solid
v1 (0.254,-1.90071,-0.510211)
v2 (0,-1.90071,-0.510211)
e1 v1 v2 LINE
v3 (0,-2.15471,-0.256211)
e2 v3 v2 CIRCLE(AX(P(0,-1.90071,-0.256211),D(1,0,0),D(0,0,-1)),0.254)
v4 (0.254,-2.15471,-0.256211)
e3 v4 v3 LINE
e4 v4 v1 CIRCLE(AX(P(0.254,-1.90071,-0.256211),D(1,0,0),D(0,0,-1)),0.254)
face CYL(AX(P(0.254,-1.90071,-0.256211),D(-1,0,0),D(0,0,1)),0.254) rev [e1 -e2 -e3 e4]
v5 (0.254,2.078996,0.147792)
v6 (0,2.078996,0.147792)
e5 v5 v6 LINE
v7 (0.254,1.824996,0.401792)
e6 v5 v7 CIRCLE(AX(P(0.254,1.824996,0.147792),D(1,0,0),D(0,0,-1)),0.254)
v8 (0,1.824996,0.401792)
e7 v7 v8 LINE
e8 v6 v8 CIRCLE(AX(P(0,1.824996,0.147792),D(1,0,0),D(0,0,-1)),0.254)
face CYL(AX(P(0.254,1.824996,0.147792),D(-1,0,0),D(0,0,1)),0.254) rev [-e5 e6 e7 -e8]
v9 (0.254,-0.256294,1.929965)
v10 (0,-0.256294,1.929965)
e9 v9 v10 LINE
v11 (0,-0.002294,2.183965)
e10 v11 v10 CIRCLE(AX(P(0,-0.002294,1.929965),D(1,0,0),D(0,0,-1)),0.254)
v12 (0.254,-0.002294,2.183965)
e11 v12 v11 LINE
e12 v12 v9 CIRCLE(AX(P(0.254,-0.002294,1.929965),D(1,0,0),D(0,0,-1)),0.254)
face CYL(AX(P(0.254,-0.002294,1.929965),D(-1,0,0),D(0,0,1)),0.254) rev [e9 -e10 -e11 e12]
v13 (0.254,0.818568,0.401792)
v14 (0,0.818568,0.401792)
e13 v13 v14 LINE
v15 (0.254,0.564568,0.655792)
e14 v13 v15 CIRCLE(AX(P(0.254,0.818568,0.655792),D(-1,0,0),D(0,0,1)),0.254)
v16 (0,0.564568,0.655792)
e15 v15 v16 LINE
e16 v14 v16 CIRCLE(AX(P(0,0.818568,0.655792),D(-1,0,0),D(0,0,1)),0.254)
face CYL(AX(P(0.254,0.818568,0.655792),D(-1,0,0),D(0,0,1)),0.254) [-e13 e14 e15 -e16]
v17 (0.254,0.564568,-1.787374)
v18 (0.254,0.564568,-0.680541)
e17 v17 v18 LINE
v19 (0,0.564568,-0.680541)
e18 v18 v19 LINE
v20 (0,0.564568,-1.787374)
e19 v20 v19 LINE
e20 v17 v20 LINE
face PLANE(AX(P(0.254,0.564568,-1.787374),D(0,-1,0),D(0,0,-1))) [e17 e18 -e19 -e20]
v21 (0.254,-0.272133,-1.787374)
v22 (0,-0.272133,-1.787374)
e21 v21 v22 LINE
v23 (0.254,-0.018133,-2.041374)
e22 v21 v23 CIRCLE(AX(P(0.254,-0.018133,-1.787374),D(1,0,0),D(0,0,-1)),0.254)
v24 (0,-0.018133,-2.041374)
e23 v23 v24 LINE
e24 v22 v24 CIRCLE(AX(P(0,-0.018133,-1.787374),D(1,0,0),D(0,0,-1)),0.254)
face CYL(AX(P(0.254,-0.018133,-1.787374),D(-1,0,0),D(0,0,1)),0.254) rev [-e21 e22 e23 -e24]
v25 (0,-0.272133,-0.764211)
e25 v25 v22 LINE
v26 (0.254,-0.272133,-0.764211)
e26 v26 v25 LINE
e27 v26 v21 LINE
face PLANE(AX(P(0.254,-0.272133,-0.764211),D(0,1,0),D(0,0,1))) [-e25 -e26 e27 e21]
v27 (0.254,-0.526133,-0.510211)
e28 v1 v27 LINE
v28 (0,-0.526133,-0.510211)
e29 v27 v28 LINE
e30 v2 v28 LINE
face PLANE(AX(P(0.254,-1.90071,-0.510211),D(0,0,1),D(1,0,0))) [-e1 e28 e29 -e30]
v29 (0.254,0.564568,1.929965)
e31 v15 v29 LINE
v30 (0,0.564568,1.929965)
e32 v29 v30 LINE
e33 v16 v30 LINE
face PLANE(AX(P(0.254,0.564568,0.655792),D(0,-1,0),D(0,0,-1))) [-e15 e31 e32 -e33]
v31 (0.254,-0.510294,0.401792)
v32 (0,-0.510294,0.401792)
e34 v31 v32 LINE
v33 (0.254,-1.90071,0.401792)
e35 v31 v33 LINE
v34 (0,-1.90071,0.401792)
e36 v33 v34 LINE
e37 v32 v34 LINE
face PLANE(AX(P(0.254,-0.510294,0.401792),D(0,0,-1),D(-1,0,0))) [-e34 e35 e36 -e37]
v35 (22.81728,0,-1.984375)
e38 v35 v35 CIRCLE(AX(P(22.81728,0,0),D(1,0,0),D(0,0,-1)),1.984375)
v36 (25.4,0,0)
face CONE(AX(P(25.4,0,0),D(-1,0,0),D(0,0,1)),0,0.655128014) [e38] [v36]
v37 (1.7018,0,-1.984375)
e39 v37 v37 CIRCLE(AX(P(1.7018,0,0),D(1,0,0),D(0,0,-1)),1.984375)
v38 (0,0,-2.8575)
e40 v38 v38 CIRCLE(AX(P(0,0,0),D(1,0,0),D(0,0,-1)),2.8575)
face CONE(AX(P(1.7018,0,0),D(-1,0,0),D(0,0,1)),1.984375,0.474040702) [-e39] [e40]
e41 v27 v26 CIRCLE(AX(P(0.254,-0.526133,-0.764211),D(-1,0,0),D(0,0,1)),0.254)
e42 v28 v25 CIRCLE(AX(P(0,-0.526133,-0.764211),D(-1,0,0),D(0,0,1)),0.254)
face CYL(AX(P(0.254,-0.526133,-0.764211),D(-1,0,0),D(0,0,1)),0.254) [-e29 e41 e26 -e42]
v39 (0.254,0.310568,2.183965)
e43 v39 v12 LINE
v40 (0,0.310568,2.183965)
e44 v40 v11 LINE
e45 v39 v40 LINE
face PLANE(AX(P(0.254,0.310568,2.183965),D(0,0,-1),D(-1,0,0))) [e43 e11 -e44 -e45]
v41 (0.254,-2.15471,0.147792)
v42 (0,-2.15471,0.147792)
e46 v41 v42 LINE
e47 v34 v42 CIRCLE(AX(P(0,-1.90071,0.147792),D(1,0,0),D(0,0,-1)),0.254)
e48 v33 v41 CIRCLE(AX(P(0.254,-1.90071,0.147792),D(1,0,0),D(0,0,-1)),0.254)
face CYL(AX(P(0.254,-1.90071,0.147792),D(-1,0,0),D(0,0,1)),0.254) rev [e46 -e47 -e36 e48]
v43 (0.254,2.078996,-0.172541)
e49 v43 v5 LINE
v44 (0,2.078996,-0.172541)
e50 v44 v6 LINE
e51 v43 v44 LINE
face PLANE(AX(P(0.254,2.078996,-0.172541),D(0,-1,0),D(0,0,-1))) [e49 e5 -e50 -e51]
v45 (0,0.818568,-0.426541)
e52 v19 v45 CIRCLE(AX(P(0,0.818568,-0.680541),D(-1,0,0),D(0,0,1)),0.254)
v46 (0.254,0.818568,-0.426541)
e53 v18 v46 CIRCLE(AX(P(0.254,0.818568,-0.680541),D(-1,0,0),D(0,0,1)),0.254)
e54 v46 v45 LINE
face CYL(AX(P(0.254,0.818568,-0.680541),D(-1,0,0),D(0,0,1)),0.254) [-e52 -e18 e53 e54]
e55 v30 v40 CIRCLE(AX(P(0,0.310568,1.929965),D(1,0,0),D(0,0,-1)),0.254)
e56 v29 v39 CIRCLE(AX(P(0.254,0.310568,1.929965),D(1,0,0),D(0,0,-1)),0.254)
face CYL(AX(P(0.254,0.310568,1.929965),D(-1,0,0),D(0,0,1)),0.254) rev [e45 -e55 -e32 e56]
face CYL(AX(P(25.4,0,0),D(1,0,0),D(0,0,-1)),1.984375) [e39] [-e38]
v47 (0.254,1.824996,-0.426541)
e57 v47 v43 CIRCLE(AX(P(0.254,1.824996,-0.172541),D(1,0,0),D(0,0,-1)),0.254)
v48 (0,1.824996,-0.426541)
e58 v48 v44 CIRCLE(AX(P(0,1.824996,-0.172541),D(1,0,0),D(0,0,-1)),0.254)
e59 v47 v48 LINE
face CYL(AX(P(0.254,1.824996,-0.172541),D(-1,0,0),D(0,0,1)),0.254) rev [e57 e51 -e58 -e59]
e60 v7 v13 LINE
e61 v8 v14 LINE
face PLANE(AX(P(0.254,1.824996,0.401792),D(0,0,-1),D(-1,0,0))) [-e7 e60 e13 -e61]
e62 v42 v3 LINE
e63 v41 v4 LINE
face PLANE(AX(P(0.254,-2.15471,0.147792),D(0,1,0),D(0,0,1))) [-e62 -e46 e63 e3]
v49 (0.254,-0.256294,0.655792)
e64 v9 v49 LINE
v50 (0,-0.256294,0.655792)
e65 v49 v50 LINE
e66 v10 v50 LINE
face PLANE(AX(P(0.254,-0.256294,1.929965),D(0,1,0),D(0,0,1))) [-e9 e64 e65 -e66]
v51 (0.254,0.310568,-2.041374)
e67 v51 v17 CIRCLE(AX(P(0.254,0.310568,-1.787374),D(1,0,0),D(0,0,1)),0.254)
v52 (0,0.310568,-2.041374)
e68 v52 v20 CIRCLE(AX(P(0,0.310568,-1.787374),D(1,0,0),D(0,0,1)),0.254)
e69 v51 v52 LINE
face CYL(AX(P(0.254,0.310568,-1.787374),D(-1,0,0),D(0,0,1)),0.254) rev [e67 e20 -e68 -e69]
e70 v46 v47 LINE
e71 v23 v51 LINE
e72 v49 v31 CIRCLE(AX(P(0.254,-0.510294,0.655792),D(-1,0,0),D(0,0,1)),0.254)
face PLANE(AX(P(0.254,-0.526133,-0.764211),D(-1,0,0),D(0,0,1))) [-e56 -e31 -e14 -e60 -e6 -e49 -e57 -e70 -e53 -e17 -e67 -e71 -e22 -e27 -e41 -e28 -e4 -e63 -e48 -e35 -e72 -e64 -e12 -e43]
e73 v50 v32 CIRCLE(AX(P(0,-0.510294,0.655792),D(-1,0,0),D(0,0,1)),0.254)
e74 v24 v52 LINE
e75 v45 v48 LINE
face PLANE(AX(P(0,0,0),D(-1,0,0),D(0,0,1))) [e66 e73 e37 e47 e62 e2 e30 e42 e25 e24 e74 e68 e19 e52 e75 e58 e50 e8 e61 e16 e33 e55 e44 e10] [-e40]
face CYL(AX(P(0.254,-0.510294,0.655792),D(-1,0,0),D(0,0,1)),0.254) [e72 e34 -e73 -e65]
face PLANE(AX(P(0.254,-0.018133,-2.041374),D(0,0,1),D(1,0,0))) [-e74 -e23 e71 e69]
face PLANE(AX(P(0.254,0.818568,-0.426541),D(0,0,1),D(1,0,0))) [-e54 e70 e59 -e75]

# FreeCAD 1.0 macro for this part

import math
import FreeCAD as App
import Part
import Sketcher
Q = App.Units.Quantity


def add_polygon(sketch, points):
    """Adds a closed chain of lines whose ends are joined by coincident constraints."""
    first, n = sketch.GeometryCount, len(points)
    for a, b in zip(points, points[1:] + points[:1]):
        sketch.addGeometry(Part.LineSegment(App.Vector(*a, 0), App.Vector(*b, 0)), False)
    for i in range(n):
        sketch.addConstraint(Sketcher.Constraint("Coincident", first + i, 2, first + (i + 1) % n, 1))

doc = App.newDocument("Part")
body = doc.addObject("PartDesign::Body", "Body")

# Sketch on XY plane
sketch1 = body.newObject("Sketcher::SketchObject", "Sketch")
sketch1.AttachmentSupport = (doc.getObject("XY_Plane"), [""])
sketch1.MapMode = "FlatFace"
add_polygon(sketch1, [(0, 2.9), (0, 0), (25.4, 0), (22.8, 2), (1.7, 2)])  # lines 0-4
sketch1.addConstraint([
    Sketcher.Constraint("Vertical", 0),
    Sketcher.Constraint("Horizontal", 1),
    Sketcher.Constraint("Horizontal", 3),
    Sketcher.Constraint("Coincident", 0, 2, -1, 1),
    Sketcher.Constraint("DistanceX", 1, 1, 1, 2, Q("1 in")),
    Sketcher.Constraint("DistanceY", 0, 2, 0, 1, Q("0.1125 in")),
    Sketcher.Constraint("DistanceY", -1, 1, 2, 2, Q("0.078125 in")),
    Sketcher.Constraint("DistanceX", -1, 1, 3, 2, Q("0.067 in")),
    Sketcher.Constraint("DistanceX", 3, 2, 3, 1, 21.11548),
])
revolution = body.newObject("PartDesign::Revolution", "Revolution")
revolution.Profile = sketch1
revolution.ReferenceAxis = (sketch1, ["H_Axis"])
revolution.Angle = 360

# Sketch on YZ plane
sketch2 = body.newObject("Sketcher::SketchObject", "Sketch001")
sketch2.AttachmentSupport = (doc.getObject("YZ_Plane"), [""])
sketch2.MapMode = "FlatFace"
sketch2.addGeometry([
    Part.LineSegment(App.Vector(0.56, -1.79, 0), App.Vector(0.56, -0.68, 0)),  # 0
    Part.ArcOfCircle(Part.Circle(App.Vector(0.82, -0.68, 0), App.Vector(0, 0, 1), 0.25), math.radians(90), math.radians(180)),  # 1
    Part.LineSegment(App.Vector(0.82, -0.43, 0), App.Vector(1.82, -0.43, 0)),  # 2
    Part.ArcOfCircle(Part.Circle(App.Vector(1.82, -0.17, 0), App.Vector(0, 0, 1), 0.25), math.radians(-90), math.radians(0)),  # 3
    Part.LineSegment(App.Vector(2.08, -0.17, 0), App.Vector(2.08, 0.15, 0)),  # 4
    Part.ArcOfCircle(Part.Circle(App.Vector(1.82, 0.15, 0), App.Vector(0, 0, 1), 0.25), math.radians(0), math.radians(90)),  # 5
    Part.LineSegment(App.Vector(1.82, 0.4, 0), App.Vector(0.82, 0.4, 0)),  # 6
    Part.ArcOfCircle(Part.Circle(App.Vector(0.82, 0.66, 0), App.Vector(0, 0, 1), 0.25), math.radians(-180), math.radians(-90)),  # 7
    Part.LineSegment(App.Vector(0.56, 0.66, 0), App.Vector(0.56, 1.93, 0)),  # 8
    Part.ArcOfCircle(Part.Circle(App.Vector(0.31, 1.93, 0), App.Vector(0, 0, 1), 0.25), math.radians(0), math.radians(90)),  # 9
    Part.LineSegment(App.Vector(0.31, 2.18, 0), App.Vector(0, 2.18, 0)),  # 10
    Part.ArcOfCircle(Part.Circle(App.Vector(0, 1.93, 0), App.Vector(0, 0, 1), 0.25), math.radians(90), math.radians(180)),  # 11
    Part.LineSegment(App.Vector(-0.26, 1.93, 0), App.Vector(-0.26, 0.66, 0)),  # 12
    Part.ArcOfCircle(Part.Circle(App.Vector(-0.51, 0.66, 0), App.Vector(0, 0, 1), 0.25), math.radians(-90), math.radians(0)),  # 13
    Part.LineSegment(App.Vector(-0.51, 0.4, 0), App.Vector(-1.9, 0.4, 0)),  # 14
    Part.ArcOfCircle(Part.Circle(App.Vector(-1.9, 0.15, 0), App.Vector(0, 0, 1), 0.25), math.radians(90), math.radians(180)),  # 15
    Part.LineSegment(App.Vector(-2.15, 0.15, 0), App.Vector(-2.15, -0.26, 0)),  # 16
    Part.ArcOfCircle(Part.Circle(App.Vector(-1.9, -0.26, 0), App.Vector(0, 0, 1), 0.25), math.radians(180), math.radians(270)),  # 17
    Part.LineSegment(App.Vector(-1.9, -0.51, 0), App.Vector(-0.53, -0.51, 0)),  # 18
    Part.ArcOfCircle(Part.Circle(App.Vector(-0.53, -0.76, 0), App.Vector(0, 0, 1), 0.25), math.radians(0), math.radians(90)),  # 19
    Part.LineSegment(App.Vector(-0.27, -0.76, 0), App.Vector(-0.27, -1.79, 0)),  # 20
    Part.ArcOfCircle(Part.Circle(App.Vector(-0.02, -1.79, 0), App.Vector(0, 0, 1), 0.25), math.radians(180), math.radians(270)),  # 21
    Part.LineSegment(App.Vector(-0.02, -2.04, 0), App.Vector(0.31, -2.04, 0)),  # 22
    Part.ArcOfCircle(Part.Circle(App.Vector(0.31, -1.79, 0), App.Vector(0, 0, 1), 0.25), math.radians(-90), math.radians(0)),  # 23
], False)
sketch2.addConstraint([
    Sketcher.Constraint("Tangent", 0, 2, 1, 2),
    Sketcher.Constraint("Tangent", 1, 1, 2, 1),
    Sketcher.Constraint("Tangent", 2, 2, 3, 1),
    Sketcher.Constraint("Tangent", 3, 2, 4, 1),
    Sketcher.Constraint("Tangent", 4, 2, 5, 1),
    Sketcher.Constraint("Tangent", 5, 2, 6, 1),
    Sketcher.Constraint("Tangent", 6, 2, 7, 2),
    Sketcher.Constraint("Tangent", 7, 1, 8, 1),
    Sketcher.Constraint("Tangent", 8, 2, 9, 1),
    Sketcher.Constraint("Tangent", 9, 2, 10, 1),
    Sketcher.Constraint("Tangent", 10, 2, 11, 1),
    Sketcher.Constraint("Tangent", 11, 2, 12, 1),
    Sketcher.Constraint("Tangent", 12, 2, 13, 2),
    Sketcher.Constraint("Tangent", 13, 1, 14, 1),
    Sketcher.Constraint("Tangent", 14, 2, 15, 1),
    Sketcher.Constraint("Tangent", 15, 2, 16, 1),
    Sketcher.Constraint("Tangent", 16, 2, 17, 1),
    Sketcher.Constraint("Tangent", 17, 2, 18, 1),
    Sketcher.Constraint("Tangent", 18, 2, 19, 2),
    Sketcher.Constraint("Tangent", 19, 1, 20, 1),
    Sketcher.Constraint("Tangent", 20, 2, 21, 1),
    Sketcher.Constraint("Tangent", 21, 2, 22, 1),
    Sketcher.Constraint("Tangent", 22, 2, 23, 1),
    Sketcher.Constraint("Tangent", 23, 2, 0, 1),
    Sketcher.Constraint("Vertical", 0),
    Sketcher.Constraint("Horizontal", 2),
    Sketcher.Constraint("Vertical", 4),
    Sketcher.Constraint("Horizontal", 6),
    Sketcher.Constraint("Vertical", 8),
    Sketcher.Constraint("Horizontal", 10),
    Sketcher.Constraint("Vertical", 12),
    Sketcher.Constraint("Horizontal", 14),
    Sketcher.Constraint("Vertical", 16),
    Sketcher.Constraint("Horizontal", 18),
    Sketcher.Constraint("Vertical", 20),
    Sketcher.Constraint("Horizontal", 22),
    Sketcher.Constraint("Equal", 1, 3),
    Sketcher.Constraint("Equal", 3, 5),
    Sketcher.Constraint("Equal", 5, 7),
    Sketcher.Constraint("Equal", 7, 9),
    Sketcher.Constraint("Equal", 9, 11),
    Sketcher.Constraint("Equal", 11, 13),
    Sketcher.Constraint("Equal", 13, 15),
    Sketcher.Constraint("Equal", 15, 17),
    Sketcher.Constraint("Equal", 17, 19),
    Sketcher.Constraint("Equal", 19, 21),
    Sketcher.Constraint("Equal", 21, 23),
    Sketcher.Constraint("Horizontal", 7, 3, 13, 3),
    Sketcher.Constraint("Vertical", 1, 3, 7, 3),
    Sketcher.Constraint("Radius", 1, Q("0.01 in")),
    Sketcher.Constraint("DistanceX", 22, 1, 22, 2, 0.328701),
    Sketcher.Constraint("DistanceX", 2, 1, 2, 2, 1.006428),
    Sketcher.Constraint("DistanceX", 10, 2, 10, 1, 0.312862),
    Sketcher.Constraint("DistanceX", 14, 2, 14, 1, 1.390415),
    Sketcher.Constraint("DistanceY", 0, 1, 0, 2, 1.106832),
    Sketcher.Constraint("DistanceY", 4, 1, 4, 2, 0.320334),
    Sketcher.Constraint("DistanceY", 8, 1, 8, 2, 1.274173),
    Sketcher.Constraint("DistanceY", 16, 2, 16, 1, 0.404004),
    Sketcher.Constraint("DistanceY", 1, 3, -1, 1, 0.680541),
    Sketcher.Constraint("DistanceX", 15, 3, -1, 1, 1.90071),
])
pocket1 = body.newObject("PartDesign::Pocket", "Pocket")
pocket1.Profile = sketch2
pocket1.Length = Q("0.01 in")
pocket1.Reversed = True

doc.recompute()
